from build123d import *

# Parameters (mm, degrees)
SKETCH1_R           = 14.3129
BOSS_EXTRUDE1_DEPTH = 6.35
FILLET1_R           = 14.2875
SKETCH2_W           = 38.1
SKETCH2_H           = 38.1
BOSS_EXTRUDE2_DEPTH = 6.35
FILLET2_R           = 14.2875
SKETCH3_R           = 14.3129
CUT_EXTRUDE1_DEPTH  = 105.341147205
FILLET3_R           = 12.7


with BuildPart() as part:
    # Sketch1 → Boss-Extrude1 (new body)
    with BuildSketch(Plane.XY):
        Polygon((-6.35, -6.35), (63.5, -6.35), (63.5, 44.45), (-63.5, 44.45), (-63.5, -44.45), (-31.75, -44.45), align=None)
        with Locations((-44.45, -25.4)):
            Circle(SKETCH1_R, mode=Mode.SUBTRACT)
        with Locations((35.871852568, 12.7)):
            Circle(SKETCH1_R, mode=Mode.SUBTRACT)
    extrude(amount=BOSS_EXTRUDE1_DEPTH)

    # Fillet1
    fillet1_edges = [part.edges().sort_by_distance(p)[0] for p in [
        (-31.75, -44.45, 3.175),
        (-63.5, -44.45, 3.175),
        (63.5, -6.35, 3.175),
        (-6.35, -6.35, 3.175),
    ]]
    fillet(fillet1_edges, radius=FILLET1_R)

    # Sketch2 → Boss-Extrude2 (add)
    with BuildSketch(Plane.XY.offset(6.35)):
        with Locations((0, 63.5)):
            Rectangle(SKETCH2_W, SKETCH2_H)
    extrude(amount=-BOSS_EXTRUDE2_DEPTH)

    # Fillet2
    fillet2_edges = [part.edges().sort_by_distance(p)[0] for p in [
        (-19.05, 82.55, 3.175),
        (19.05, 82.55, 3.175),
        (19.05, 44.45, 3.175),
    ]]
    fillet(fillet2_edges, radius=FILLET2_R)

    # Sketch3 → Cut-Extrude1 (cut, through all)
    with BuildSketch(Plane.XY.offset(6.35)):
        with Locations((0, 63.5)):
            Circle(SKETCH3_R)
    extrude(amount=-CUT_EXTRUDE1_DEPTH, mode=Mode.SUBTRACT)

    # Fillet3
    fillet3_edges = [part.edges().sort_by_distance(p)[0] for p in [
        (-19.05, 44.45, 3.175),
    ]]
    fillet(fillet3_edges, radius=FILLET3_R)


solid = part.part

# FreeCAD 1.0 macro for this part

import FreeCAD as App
import Part
import Sketcher
Q = App.Units.Quantity


def edges_at(feature, points):
    """Names of the edges that pass closest to the given points."""
    edges = feature.Shape.Edges
    near = lambda p: min(range(len(edges)), key=lambda i: edges[i].distToShape(Part.Vertex(*p))[0])
    return sorted({f"Edge{near(p) + 1}" for p in points})


def add_polygon(sketch, points):
    """Adds a closed chain of lines whose ends are joined by coincident constraints."""
    first, n = sketch.GeometryCount, len(points)
    for a, b in zip(points, points[1:] + points[:1]):
        sketch.addGeometry(Part.LineSegment(App.Vector(*a, 0), App.Vector(*b, 0)), False)
    for i in range(n):
        sketch.addConstraint(Sketcher.Constraint("Coincident", first + i, 2, first + (i + 1) % n, 1))

doc = App.newDocument("Part")
body = doc.addObject("PartDesign::Body", "Body")

# Sketch on XY plane
sketch1 = doc.addObject("Sketcher::SketchObject", "Sketch")
body.addObject(sketch1)
sketch1.AttachmentSupport = (doc.XY_Plane, [""])
sketch1.MapMode = "FlatFace"
add_polygon(sketch1, [(-6, -6), (64, -6), (64, 44), (-64, 44), (-64, -44), (-32, -44)])  # lines 0-5
sketch1.addGeometry(Part.Circle(App.Vector(-44, -25, 0), App.Vector(0, 0, 1), 14), False)  # 6
sketch1.addGeometry(Part.Circle(App.Vector(36, 13, 0), App.Vector(0, 0, 1), 14), False)  # 7
sketch1.addConstraint([
    Sketcher.Constraint("Horizontal", 0),
    Sketcher.Constraint("Vertical", 1),
    Sketcher.Constraint("Horizontal", 2),
    Sketcher.Constraint("Vertical", 3),
    Sketcher.Constraint("Horizontal", 4),
    Sketcher.Constraint("Equal", 6, 7),
    Sketcher.Constraint("Symmetric", 1, 2, 3, 2, -1, 1),
    Sketcher.Constraint("DistanceX", 2, 2, 2, 1, Q("5 in")),
    Sketcher.Constraint("DistanceY", 1, 1, 1, 2, Q("2 in")),
    Sketcher.Constraint("Diameter", 6, Q("1.127 in")),
    Sketcher.Constraint("DistanceY", 3, 2, 3, 1, Q("3.5 in")),
    Sketcher.Constraint("DistanceY", 6, 3, -1, 1, Q("1 in")),
    Sketcher.Constraint("DistanceX", 4, 2, 5, 2, Q("1 in")),
    Sketcher.Constraint("DistanceX", 0, 1, 0, 2, Q("2.75 in")),
    Sketcher.Constraint("DistanceY", -1, 1, 7, 3, Q("0.5 in")),
    Sketcher.Constraint("DistanceX", 6, 3, 4, 2, Q("0.5 in")),
    Sketcher.Constraint("DistanceX", -1, 1, 7, 3, 35.871853),
])
pad1 = doc.addObject("PartDesign::Pad", "Pad")
body.addObject(pad1)
pad1.Profile = sketch1
pad1.Length = Q("0.25 in")
doc.recompute()

fillet = doc.addObject("PartDesign::Fillet", "Fillet")
body.addObject(fillet)
fillet.Base = (pad1, edges_at(pad1, [
    (-31.75, -44.45, 3.175),
    (-63.5, -44.45, 3.175),
    (63.5, -6.35, 3.175),
    (-6.35, -6.35, 3.175),
]))
fillet.Radius = Q("0.5625 in")

# Sketch on XY plane
sketch2 = doc.addObject("Sketcher::SketchObject", "Sketch001")
body.addObject(sketch2)
sketch2.AttachmentSupport = (doc.XY_Plane, [""])
sketch2.MapMode = "FlatFace"
sketch2.AttachmentOffset = App.Placement(App.Vector(0, 0, 0.25 * 25.4), App.Rotation())
add_polygon(sketch2, [(-19, 83), (-19, 44), (19, 44), (19, 83)])  # lines 0-3
sketch2.addConstraint([
    Sketcher.Constraint("Vertical", 0),
    Sketcher.Constraint("Horizontal", 1),
    Sketcher.Constraint("Vertical", 2),
    Sketcher.Constraint("Horizontal", 3),
    Sketcher.Constraint("Equal", 3, 0),
    Sketcher.Constraint("DistanceX", 1, 1, 1, 2, Q("1.5 in")),
    Sketcher.Constraint("DistanceX", 0, 2, -1, 1, Q("0.75 in")),
    Sketcher.Constraint("DistanceY", -1, 1, 0, 2, Q("1.75 in")),
])
pad2 = doc.addObject("PartDesign::Pad", "Pad001")
body.addObject(pad2)
pad2.Profile = sketch2
pad2.Length = Q("0.25 in")
pad2.Reversed = True
doc.recompute()

fillet2 = doc.addObject("PartDesign::Fillet", "Fillet001")
body.addObject(fillet2)
fillet2.Base = (pad2, edges_at(pad2, [(-19.05, 82.55, 3.175), (19.05, 82.55, 3.175), (19.05, 44.45, 3.175)]))
fillet2.Radius = Q("0.5625 in")

# Sketch on XY plane
sketch3 = doc.addObject("Sketcher::SketchObject", "Sketch002")
body.addObject(sketch3)
sketch3.AttachmentSupport = (doc.XY_Plane, [""])
sketch3.MapMode = "FlatFace"
sketch3.AttachmentOffset = App.Placement(App.Vector(0, 0, 0.25 * 25.4), App.Rotation())
sketch3.addGeometry(Part.Circle(App.Vector(0, 64, 0), App.Vector(0, 0, 1), 14), False)
sketch3.addConstraint([
    Sketcher.Constraint("PointOnObject", 0, 3, -2),
    Sketcher.Constraint("Diameter", 0, Q("1.127 in")),
    Sketcher.Constraint("DistanceY", -1, 1, 0, 3, Q("2.5 in")),
])
pocket1 = doc.addObject("PartDesign::Pocket", "Pocket")
body.addObject(pocket1)
pocket1.Profile = sketch3
pocket1.Type = "ThroughAll"
doc.recompute()

fillet3 = doc.addObject("PartDesign::Fillet", "Fillet002")
body.addObject(fillet3)
fillet3.Base = (pocket1, edges_at(pocket1, [(-19.05, 44.45, 3.175)]))
fillet3.Radius = Q("0.5 in")

doc.recompute()
